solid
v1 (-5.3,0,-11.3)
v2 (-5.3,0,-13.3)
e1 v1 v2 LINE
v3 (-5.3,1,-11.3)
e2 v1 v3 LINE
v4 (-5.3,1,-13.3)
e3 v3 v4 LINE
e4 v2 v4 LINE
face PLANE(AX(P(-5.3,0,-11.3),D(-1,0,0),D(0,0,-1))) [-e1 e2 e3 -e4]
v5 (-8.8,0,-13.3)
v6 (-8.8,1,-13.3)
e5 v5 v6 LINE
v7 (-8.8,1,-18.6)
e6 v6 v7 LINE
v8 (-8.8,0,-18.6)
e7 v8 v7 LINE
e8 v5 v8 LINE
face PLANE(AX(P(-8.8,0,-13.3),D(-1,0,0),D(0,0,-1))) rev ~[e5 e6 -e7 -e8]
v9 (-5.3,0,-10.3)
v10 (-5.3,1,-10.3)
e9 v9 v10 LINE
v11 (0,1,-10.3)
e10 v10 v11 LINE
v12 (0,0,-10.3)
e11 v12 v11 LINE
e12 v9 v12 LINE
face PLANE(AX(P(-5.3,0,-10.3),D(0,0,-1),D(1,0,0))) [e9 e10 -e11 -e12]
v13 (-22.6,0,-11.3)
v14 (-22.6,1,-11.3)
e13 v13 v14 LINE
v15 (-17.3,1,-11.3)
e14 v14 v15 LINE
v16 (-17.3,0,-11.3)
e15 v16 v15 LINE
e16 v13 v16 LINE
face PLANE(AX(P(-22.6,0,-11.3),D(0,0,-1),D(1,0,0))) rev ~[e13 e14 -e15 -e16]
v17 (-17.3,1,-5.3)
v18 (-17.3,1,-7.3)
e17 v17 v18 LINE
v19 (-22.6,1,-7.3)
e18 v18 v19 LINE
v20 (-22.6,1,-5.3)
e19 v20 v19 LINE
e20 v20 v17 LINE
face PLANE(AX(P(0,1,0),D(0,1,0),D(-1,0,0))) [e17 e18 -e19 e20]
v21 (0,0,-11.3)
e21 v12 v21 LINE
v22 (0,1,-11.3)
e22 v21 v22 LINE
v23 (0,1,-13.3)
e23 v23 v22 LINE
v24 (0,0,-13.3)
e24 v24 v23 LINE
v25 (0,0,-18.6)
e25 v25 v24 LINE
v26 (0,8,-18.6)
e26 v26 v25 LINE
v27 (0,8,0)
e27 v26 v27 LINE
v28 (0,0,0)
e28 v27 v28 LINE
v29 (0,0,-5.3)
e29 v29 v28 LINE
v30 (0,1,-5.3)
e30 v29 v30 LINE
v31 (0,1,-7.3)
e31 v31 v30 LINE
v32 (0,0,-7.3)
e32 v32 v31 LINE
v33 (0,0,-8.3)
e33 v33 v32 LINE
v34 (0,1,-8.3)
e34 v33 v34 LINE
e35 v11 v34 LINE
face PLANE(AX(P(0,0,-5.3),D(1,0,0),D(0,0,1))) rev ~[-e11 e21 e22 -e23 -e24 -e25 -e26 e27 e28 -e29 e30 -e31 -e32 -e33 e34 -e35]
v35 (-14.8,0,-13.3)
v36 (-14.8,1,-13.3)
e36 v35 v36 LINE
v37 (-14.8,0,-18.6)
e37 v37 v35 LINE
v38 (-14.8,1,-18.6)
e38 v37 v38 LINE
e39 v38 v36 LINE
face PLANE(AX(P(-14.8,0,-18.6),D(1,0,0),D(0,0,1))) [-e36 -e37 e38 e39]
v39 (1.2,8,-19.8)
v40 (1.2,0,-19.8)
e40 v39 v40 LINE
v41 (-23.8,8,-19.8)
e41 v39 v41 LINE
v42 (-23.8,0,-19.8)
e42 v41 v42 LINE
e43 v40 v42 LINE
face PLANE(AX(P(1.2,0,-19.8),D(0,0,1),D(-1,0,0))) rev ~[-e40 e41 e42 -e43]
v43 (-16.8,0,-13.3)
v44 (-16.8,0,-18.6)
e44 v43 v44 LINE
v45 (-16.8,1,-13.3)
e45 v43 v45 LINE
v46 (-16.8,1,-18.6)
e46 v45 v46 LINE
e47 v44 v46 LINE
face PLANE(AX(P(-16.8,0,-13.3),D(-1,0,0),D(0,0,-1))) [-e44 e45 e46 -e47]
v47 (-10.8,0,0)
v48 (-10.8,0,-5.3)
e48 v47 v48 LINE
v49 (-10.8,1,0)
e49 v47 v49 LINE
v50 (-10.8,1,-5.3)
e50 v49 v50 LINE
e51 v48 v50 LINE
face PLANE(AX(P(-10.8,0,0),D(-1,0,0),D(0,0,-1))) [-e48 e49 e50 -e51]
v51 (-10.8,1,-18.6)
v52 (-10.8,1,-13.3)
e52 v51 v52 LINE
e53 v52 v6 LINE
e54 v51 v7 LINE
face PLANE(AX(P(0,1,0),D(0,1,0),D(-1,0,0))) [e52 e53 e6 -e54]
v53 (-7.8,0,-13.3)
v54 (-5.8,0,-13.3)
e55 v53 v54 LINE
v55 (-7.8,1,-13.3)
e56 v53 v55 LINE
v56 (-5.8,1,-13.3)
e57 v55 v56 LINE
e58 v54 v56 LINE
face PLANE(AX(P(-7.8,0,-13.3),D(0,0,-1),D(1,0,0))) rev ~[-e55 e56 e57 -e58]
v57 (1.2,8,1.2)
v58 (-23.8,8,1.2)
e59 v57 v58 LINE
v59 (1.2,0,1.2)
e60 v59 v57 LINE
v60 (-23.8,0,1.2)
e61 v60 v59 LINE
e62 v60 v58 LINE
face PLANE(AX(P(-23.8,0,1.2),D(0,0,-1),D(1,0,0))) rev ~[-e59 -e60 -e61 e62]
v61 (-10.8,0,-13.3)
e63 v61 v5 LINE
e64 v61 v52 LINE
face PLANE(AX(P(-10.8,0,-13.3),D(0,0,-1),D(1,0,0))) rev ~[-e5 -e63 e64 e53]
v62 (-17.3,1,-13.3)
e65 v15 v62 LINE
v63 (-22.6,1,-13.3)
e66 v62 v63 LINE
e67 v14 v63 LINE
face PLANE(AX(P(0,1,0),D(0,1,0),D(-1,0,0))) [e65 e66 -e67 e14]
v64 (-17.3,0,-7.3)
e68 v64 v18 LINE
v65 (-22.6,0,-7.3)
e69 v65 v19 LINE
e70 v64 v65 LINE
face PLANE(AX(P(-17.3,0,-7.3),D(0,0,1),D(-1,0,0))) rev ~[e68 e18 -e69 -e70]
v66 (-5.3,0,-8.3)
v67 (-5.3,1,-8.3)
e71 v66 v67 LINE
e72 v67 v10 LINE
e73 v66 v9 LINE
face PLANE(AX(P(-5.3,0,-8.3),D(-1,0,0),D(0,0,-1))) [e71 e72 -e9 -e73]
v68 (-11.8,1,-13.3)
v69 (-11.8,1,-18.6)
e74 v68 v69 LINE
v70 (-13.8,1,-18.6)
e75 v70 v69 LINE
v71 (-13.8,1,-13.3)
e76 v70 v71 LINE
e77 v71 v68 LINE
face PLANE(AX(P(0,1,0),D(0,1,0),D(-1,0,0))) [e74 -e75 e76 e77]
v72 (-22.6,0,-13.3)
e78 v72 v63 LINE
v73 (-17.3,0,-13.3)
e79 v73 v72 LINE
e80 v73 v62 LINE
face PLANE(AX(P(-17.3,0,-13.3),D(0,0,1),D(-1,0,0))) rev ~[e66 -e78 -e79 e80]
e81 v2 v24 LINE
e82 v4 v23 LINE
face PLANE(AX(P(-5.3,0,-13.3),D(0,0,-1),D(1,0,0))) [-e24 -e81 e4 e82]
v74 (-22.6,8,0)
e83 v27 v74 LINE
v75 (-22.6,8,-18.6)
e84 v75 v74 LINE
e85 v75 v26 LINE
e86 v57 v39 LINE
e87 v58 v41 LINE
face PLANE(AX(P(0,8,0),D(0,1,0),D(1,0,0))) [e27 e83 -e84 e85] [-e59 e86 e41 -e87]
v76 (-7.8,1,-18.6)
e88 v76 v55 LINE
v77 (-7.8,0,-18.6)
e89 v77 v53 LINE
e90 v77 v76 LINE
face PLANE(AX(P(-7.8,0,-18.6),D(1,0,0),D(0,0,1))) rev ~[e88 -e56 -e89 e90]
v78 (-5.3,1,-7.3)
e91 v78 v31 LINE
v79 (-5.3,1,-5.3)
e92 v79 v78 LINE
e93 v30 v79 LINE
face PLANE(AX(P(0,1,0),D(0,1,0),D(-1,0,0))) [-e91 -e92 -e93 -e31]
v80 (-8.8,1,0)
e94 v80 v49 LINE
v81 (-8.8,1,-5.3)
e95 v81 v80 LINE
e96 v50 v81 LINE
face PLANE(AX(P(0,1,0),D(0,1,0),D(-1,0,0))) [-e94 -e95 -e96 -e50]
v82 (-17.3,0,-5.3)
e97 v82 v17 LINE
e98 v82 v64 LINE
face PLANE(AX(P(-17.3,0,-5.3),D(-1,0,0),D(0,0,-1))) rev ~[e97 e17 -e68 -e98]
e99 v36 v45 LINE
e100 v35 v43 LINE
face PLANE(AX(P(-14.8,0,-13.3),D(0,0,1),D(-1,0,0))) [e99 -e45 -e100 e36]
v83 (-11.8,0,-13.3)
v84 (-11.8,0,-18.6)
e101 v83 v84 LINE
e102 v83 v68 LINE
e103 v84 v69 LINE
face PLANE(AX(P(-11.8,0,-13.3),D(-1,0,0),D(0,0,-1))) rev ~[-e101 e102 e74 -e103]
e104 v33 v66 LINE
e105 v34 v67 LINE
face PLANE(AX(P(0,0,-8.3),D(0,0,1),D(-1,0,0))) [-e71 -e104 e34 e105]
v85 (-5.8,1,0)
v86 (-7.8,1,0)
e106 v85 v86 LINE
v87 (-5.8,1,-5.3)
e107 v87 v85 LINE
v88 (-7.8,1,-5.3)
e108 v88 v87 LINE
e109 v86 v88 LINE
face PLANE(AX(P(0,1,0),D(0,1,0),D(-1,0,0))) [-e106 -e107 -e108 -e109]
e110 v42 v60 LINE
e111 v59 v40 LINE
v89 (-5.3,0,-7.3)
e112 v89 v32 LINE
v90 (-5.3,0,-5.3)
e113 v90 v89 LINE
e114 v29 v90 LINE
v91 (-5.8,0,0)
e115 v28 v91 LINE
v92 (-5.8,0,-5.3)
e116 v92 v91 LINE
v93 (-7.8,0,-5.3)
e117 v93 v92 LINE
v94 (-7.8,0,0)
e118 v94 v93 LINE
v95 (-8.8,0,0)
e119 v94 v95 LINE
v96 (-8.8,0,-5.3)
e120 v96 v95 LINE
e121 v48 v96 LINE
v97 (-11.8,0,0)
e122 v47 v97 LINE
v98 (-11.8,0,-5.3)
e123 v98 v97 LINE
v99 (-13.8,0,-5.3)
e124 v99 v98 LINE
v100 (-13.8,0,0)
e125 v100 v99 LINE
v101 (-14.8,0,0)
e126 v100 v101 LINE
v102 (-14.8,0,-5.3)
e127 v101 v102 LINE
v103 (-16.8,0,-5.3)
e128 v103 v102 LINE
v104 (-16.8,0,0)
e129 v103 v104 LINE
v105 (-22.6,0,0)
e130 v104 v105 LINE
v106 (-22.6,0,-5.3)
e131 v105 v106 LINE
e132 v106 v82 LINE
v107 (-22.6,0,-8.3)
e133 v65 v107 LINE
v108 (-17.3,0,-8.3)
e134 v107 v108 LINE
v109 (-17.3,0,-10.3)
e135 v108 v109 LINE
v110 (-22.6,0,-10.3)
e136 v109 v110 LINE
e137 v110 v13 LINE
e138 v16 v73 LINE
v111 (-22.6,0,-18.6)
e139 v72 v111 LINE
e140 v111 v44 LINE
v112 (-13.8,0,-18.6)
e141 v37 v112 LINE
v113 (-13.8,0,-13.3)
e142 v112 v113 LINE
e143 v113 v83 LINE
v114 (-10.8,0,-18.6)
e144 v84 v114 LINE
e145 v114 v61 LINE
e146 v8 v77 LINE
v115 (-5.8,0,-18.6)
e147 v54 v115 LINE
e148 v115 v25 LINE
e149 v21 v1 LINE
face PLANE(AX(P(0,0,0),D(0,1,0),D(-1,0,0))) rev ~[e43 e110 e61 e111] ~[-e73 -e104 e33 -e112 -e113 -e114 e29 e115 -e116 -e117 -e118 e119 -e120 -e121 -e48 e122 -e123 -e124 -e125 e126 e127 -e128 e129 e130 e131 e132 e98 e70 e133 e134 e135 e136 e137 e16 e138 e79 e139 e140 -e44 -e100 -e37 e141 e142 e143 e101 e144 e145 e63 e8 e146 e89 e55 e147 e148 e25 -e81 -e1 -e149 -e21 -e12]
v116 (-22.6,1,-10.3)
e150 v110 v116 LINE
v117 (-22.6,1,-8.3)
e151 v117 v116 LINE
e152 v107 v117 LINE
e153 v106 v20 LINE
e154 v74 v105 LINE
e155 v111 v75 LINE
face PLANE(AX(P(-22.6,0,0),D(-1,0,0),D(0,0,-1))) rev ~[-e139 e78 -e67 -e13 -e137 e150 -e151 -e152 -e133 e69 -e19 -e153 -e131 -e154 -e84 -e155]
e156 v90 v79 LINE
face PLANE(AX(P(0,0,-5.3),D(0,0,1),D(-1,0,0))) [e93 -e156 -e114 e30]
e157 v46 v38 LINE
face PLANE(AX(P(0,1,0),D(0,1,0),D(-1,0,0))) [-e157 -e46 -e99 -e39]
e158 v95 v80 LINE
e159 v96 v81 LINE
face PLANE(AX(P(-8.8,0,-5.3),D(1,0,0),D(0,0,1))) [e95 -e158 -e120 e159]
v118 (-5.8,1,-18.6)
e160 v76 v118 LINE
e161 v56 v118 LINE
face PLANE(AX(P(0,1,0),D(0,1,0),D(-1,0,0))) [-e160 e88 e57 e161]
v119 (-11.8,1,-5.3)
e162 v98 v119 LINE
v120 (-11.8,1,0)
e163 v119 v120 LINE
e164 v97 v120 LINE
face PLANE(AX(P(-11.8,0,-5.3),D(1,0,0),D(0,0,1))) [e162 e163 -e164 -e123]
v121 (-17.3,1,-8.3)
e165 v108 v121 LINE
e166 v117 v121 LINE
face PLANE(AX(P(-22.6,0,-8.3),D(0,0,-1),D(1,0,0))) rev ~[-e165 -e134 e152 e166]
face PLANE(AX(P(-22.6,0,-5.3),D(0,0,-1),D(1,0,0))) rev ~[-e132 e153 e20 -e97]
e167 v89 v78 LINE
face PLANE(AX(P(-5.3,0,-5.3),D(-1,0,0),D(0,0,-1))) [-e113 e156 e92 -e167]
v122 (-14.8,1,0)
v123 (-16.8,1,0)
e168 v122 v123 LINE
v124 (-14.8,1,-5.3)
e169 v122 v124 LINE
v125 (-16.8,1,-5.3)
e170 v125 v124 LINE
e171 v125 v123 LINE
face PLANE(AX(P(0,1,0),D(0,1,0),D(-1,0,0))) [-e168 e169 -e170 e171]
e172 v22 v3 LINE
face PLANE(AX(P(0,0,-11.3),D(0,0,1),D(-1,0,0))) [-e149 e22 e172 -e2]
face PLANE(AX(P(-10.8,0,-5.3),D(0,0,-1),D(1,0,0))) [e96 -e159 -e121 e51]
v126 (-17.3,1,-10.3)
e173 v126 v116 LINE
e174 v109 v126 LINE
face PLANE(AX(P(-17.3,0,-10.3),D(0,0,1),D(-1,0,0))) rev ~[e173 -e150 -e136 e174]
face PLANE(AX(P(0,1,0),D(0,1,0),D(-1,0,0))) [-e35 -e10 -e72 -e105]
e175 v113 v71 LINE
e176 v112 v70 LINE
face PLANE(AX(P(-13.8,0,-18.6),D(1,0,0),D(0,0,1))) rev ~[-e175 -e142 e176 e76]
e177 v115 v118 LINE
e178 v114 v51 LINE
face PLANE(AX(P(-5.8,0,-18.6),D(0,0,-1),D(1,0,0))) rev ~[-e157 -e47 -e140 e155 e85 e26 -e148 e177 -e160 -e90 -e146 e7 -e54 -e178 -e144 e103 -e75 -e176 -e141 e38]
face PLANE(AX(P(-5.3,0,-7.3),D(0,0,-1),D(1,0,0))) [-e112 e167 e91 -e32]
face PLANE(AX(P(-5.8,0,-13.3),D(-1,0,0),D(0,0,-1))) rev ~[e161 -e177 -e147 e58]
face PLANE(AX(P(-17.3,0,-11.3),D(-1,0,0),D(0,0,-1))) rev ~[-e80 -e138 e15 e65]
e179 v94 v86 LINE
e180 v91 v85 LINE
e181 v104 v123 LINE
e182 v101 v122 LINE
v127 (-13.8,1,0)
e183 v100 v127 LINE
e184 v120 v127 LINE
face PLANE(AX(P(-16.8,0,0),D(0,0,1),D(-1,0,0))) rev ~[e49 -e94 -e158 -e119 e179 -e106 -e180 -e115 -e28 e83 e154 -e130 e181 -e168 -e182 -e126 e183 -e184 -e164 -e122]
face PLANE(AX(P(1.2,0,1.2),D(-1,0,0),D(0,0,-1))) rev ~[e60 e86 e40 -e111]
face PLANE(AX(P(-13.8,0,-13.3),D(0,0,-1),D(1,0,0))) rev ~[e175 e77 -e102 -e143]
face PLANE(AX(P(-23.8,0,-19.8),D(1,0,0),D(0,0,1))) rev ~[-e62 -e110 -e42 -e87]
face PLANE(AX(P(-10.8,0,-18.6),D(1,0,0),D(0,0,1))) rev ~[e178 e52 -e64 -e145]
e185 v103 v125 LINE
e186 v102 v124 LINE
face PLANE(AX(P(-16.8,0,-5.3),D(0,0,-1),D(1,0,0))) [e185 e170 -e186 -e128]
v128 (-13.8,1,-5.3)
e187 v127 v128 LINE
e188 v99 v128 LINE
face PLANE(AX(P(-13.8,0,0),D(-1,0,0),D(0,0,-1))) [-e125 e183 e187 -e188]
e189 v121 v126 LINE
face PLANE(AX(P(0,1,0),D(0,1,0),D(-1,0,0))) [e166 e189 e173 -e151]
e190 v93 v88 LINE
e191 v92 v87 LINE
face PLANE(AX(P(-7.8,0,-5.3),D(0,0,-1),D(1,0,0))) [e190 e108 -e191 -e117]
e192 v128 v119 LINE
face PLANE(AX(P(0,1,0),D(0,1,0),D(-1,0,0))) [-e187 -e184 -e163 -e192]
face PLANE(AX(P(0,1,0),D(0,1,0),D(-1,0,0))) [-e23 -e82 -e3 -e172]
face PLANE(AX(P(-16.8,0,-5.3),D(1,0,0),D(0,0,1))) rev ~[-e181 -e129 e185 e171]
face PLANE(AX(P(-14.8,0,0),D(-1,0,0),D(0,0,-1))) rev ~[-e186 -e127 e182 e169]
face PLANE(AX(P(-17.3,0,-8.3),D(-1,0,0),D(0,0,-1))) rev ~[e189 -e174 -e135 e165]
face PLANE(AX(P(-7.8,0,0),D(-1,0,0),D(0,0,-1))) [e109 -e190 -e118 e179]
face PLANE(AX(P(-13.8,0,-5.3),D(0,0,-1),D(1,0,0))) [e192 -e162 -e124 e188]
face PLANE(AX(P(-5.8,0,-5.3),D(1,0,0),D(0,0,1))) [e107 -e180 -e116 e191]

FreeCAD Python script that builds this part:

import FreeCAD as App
import Part
import Sketcher
from FreeCAD import Vector


def add_polygon(sketch, points):
    """Adds a closed chain of lines whose ends are joined by coincident constraints."""
    first, n = sketch.GeometryCount, len(points)
    for a, b in zip(points, points[1:] + points[:1]):
        sketch.addGeometry(Part.LineSegment(App.Vector(*a, 0), App.Vector(*b, 0)), False)
    for i in range(n):
        sketch.addConstraint(Sketcher.Constraint("Coincident", first + i, 2, first + (i + 1) % n, 1))

doc = App.newDocument("Part")
body = doc.addObject("PartDesign::Body", "Body")

sketch1 = doc.addObject("Sketcher::SketchObject", "Sketch")
body.addObject(sketch1)
sketch1.AttachmentSupport = (doc.XZ_Plane, [""])
sketch1.MapMode = "FlatFace"
add_polygon(sketch1, [(-23.8, -19.8), (-23.8, 1.2), (1.2, 1.2), (1.2, -19.8)])
add_polygon(sketch1, [(-22.6, 0), (-22.6, -5.3), (-17.3, -5.3), (-17.3, -7.3), (-22.6, -7.3), (-22.6, -8.3), (-17.3, -8.3), (-17.3, -10.3), (-22.6, -10.3), (-22.6, -11.3), (-17.3, -11.3), (-17.3, -13.3), (-22.6, -13.3), (-22.6, -18.6), (-16.8, -18.6), (-16.8, -13.3), (-14.8, -13.3), (-14.8, -18.6), (-13.8, -18.6), (-13.8, -13.3), (-11.8, -13.3), (-11.8, -18.6), (-10.8, -18.6), (-10.8, -13.3), (-8.8, -13.3), (-8.8, -18.6), (-7.8, -18.6), (-7.8, -13.3), (-5.8, -13.3), (-5.8, -18.6), (0, -18.6), (0, -13.3), (-5.3, -13.3), (-5.3, -11.3), (0, -11.3), (0, -10.3), (-5.3, -10.3), (-5.3, -8.3), (0, -8.3), (0, -7.3), (-5.3, -7.3), (-5.3, -5.3), (0, -5.3), (0, 0), (-5.8, 0), (-5.8, -5.3), (-7.8, -5.3), (-7.8, 0), (-8.8, 0), (-8.8, -5.3), (-10.8, -5.3), (-10.8, 0), (-11.8, 0), (-11.8, -5.3), (-13.8, -5.3), (-13.8, 0), (-14.8, 0), (-14.8, -5.3), (-16.8, -5.3), (-16.8, 0)])
sketch1.addConstraint([
    Sketcher.Constraint("Vertical", 0),
    Sketcher.Constraint("Horizontal", 1),
    Sketcher.Constraint("Vertical", 2),
    Sketcher.Constraint("Horizontal", 3),
    Sketcher.Constraint("Vertical", 4),
    Sketcher.Constraint("Horizontal", 5),
    Sketcher.Constraint("Vertical", 6),
    Sketcher.Constraint("Horizontal", 7),
    Sketcher.Constraint("Vertical", 8),
    Sketcher.Constraint("Horizontal", 9),
    Sketcher.Constraint("Vertical", 10),
    Sketcher.Constraint("Horizontal", 11),
    Sketcher.Constraint("Vertical", 12),
    Sketcher.Constraint("Horizontal", 13),
    Sketcher.Constraint("Vertical", 14),
    Sketcher.Constraint("Horizontal", 15),
    Sketcher.Constraint("Vertical", 16),
    Sketcher.Constraint("Horizontal", 17),
    Sketcher.Constraint("Vertical", 18),
    Sketcher.Constraint("Horizontal", 19),
    Sketcher.Constraint("Vertical", 20),
    Sketcher.Constraint("Horizontal", 21),
    Sketcher.Constraint("Vertical", 22),
    Sketcher.Constraint("Horizontal", 23),
    Sketcher.Constraint("Vertical", 24),
    Sketcher.Constraint("Horizontal", 25),
    Sketcher.Constraint("Vertical", 26),
    Sketcher.Constraint("Horizontal", 27),
    Sketcher.Constraint("Vertical", 28),
    Sketcher.Constraint("Horizontal", 29),
    Sketcher.Constraint("Vertical", 30),
    Sketcher.Constraint("Horizontal", 31),
    Sketcher.Constraint("Vertical", 32),
    Sketcher.Constraint("Horizontal", 33),
    Sketcher.Constraint("Vertical", 34),
    Sketcher.Constraint("Horizontal", 35),
    Sketcher.Constraint("Vertical", 36),
    Sketcher.Constraint("Horizontal", 37),
    Sketcher.Constraint("Vertical", 38),
    Sketcher.Constraint("Horizontal", 39),
    Sketcher.Constraint("Vertical", 40),
    Sketcher.Constraint("Horizontal", 41),
    Sketcher.Constraint("Vertical", 42),
    Sketcher.Constraint("Horizontal", 43),
    Sketcher.Constraint("Vertical", 44),
    Sketcher.Constraint("Horizontal", 45),
    Sketcher.Constraint("Vertical", 46),
    Sketcher.Constraint("Horizontal", 47),
    Sketcher.Constraint("Vertical", 48),
    Sketcher.Constraint("Horizontal", 49),
    Sketcher.Constraint("Vertical", 50),
    Sketcher.Constraint("Horizontal", 51),
    Sketcher.Constraint("Vertical", 52),
    Sketcher.Constraint("Horizontal", 53),
    Sketcher.Constraint("Vertical", 54),
    Sketcher.Constraint("Horizontal", 55),
    Sketcher.Constraint("Vertical", 56),
    Sketcher.Constraint("Horizontal", 57),
    Sketcher.Constraint("Vertical", 58),
    Sketcher.Constraint("Horizontal", 59),
    Sketcher.Constraint("Vertical", 60),
    Sketcher.Constraint("Horizontal", 61),
    Sketcher.Constraint("Vertical", 62),
    Sketcher.Constraint("Horizontal", 63),
    Sketcher.Constraint("Coincident", 46, 2, -1, 1),
    Sketcher.Constraint("PointOnObject", 33, 2, -2),
    Sketcher.Constraint("PointOnObject", 37, 2, -2),
    Sketcher.Constraint("PointOnObject", 41, 2, -2),
    Sketcher.Constraint("PointOnObject", 50, 2, -1),
    Sketcher.Constraint("PointOnObject", 54, 2, -1),
    Sketcher.Constraint("PointOnObject", 58, 2, -1),
    Sketcher.Constraint("PointOnObject", 62, 2, -1),
    Sketcher.Constraint("Horizontal", 15, 2, 18, 2),
    Sketcher.Constraint("Horizontal", 17, 2, 20, 2),
    Sketcher.Constraint("Horizontal", 19, 2, 22, 2),
    Sketcher.Constraint("Horizontal", 21, 2, 24, 2),
    Sketcher.Constraint("Horizontal", 23, 2, 26, 2),
    Sketcher.Constraint("Horizontal", 25, 2, 28, 2),
    Sketcher.Constraint("Horizontal", 27, 2, 30, 2),
    Sketcher.Constraint("Horizontal", 29, 2, 32, 2),
    Sketcher.Constraint("Horizontal", 31, 2, 34, 2),
    Sketcher.Constraint("Horizontal", 13, 2, 36, 2),
    Sketcher.Constraint("Horizontal", 11, 2, 38, 2),
    Sketcher.Constraint("Horizontal", 9, 2, 40, 2),
    Sketcher.Constraint("Horizontal", 7, 2, 42, 2),
    Sketcher.Constraint("Horizontal", 5, 2, 44, 2),
    Sketcher.Constraint("Horizontal", 45, 2, 48, 2),
    Sketcher.Constraint("Horizontal", 49, 2, 52, 2),
    Sketcher.Constraint("Horizontal", 53, 2, 56, 2),
    Sketcher.Constraint("Horizontal", 57, 2, 60, 2),
    Sketcher.Constraint("Vertical", 4, 2, 7, 2),
    Sketcher.Constraint("Vertical", 6, 2, 9, 2),
    Sketcher.Constraint("Vertical", 8, 2, 11, 2),
    Sketcher.Constraint("Vertical", 10, 2, 13, 2),
    Sketcher.Constraint("Vertical", 12, 2, 15, 2),
    Sketcher.Constraint("Vertical", 36, 2, 39, 2),
    Sketcher.Constraint("Vertical", 40, 2, 43, 2),
    Sketcher.Constraint("Vertical", 32, 2, 47, 2),
    Sketcher.Constraint("Vertical", 30, 2, 49, 2),
    Sketcher.Constraint("Vertical", 28, 2, 51, 2),
    Sketcher.Constraint("Vertical", 26, 2, 53, 2),
    Sketcher.Constraint("Vertical", 24, 2, 55, 2),
    Sketcher.Constraint("Vertical", 22, 2, 57, 2),
    Sketcher.Constraint("Vertical", 20, 2, 59, 2),
    Sketcher.Constraint("Vertical", 18, 2, 61, 2),
    Sketcher.Constraint("Equal", 19, 23),
    Sketcher.Constraint("Equal", 21, 25),
    Sketcher.Constraint("Equal", 23, 27),
    Sketcher.Constraint("Equal", 25, 29),
    Sketcher.Constraint("Equal", 27, 31),
    Sketcher.Constraint("Equal", 17, 33),
    Sketcher.Constraint("Equal", 15, 35),
    Sketcher.Constraint("Equal", 45, 4),
    Sketcher.Constraint("Equal", 61, 6),
    Sketcher.Constraint("Equal", 59, 8),
    Sketcher.Constraint("Equal", 6, 10),
    Sketcher.Constraint("Equal", 8, 12),
    Sketcher.Constraint("Equal", 10, 14),
    Sketcher.Constraint("Equal", 4, 16),
    Sketcher.Constraint("DistanceX", 1, 1, 1, 2, 25.0),
    Sketcher.Constraint("DistanceX", 19, 1, 19, 2, 2.0),
    Sketcher.Constraint("DistanceX", 21, 1, 21, 2, 1.0),
    Sketcher.Constraint("DistanceY", 0, 1, 0, 2, 21.0),
    Sketcher.Constraint("DistanceX", 5, 1, 5, 2, 5.3),
    Sketcher.Constraint("DistanceX", 17, 1, 17, 2, 5.8),
    Sketcher.Constraint("DistanceX", 0, 2, -1, 1, 23.8),
    Sketcher.Constraint("DistanceY", -1, 1, 0, 2, 1.2),
])
pad1 = doc.addObject("PartDesign::Pad", "Pad")
body.addObject(pad1)
pad1.Profile = sketch1
pad1.Length = 1
pad1.Reversed = True

sketch2 = doc.addObject("Sketcher::SketchObject", "Sketch001")
body.addObject(sketch2)
sketch2.AttachmentSupport = (doc.XZ_Plane, [""])
sketch2.MapMode = "FlatFace"
sketch2.AttachmentOffset = App.Placement(Vector(0, 0, -1), App.Rotation())
add_polygon(sketch2, [(1, 1), (1, -20), (-24, -20), (-24, 1)])
add_polygon(sketch2, [(-23, 0), (-23, -19), (0, -19), (0, 0)])
sketch2.addConstraint([
    Sketcher.Constraint("Vertical", 0),
    Sketcher.Constraint("Horizontal", 1),
    Sketcher.Constraint("Vertical", 2),
    Sketcher.Constraint("Horizontal", 3),
    Sketcher.Constraint("Vertical", 4),
    Sketcher.Constraint("Horizontal", 5),
    Sketcher.Constraint("Vertical", 6),
    Sketcher.Constraint("Horizontal", 7),
    Sketcher.Constraint("Coincident", 6, 2, -1, 1),
    Sketcher.Constraint("DistanceX", 1, 2, 1, 1, 25.0),
    Sketcher.Constraint("DistanceY", 0, 2, 0, 1, 21.0),
    Sketcher.Constraint("DistanceX", 5, 1, 5, 2, 22.6),
    Sketcher.Constraint("DistanceY", 4, 2, 4, 1, 18.6),
    Sketcher.Constraint("DistanceX", -1, 1, 0, 2, 1.2),
    Sketcher.Constraint("DistanceY", 0, 2, -1, 1, 19.8),
])
pad2 = doc.addObject("PartDesign::Pad", "Pad001")
body.addObject(pad2)
pad2.Profile = sketch2
pad2.Length = 7
pad2.Reversed = True

doc.recompute()
